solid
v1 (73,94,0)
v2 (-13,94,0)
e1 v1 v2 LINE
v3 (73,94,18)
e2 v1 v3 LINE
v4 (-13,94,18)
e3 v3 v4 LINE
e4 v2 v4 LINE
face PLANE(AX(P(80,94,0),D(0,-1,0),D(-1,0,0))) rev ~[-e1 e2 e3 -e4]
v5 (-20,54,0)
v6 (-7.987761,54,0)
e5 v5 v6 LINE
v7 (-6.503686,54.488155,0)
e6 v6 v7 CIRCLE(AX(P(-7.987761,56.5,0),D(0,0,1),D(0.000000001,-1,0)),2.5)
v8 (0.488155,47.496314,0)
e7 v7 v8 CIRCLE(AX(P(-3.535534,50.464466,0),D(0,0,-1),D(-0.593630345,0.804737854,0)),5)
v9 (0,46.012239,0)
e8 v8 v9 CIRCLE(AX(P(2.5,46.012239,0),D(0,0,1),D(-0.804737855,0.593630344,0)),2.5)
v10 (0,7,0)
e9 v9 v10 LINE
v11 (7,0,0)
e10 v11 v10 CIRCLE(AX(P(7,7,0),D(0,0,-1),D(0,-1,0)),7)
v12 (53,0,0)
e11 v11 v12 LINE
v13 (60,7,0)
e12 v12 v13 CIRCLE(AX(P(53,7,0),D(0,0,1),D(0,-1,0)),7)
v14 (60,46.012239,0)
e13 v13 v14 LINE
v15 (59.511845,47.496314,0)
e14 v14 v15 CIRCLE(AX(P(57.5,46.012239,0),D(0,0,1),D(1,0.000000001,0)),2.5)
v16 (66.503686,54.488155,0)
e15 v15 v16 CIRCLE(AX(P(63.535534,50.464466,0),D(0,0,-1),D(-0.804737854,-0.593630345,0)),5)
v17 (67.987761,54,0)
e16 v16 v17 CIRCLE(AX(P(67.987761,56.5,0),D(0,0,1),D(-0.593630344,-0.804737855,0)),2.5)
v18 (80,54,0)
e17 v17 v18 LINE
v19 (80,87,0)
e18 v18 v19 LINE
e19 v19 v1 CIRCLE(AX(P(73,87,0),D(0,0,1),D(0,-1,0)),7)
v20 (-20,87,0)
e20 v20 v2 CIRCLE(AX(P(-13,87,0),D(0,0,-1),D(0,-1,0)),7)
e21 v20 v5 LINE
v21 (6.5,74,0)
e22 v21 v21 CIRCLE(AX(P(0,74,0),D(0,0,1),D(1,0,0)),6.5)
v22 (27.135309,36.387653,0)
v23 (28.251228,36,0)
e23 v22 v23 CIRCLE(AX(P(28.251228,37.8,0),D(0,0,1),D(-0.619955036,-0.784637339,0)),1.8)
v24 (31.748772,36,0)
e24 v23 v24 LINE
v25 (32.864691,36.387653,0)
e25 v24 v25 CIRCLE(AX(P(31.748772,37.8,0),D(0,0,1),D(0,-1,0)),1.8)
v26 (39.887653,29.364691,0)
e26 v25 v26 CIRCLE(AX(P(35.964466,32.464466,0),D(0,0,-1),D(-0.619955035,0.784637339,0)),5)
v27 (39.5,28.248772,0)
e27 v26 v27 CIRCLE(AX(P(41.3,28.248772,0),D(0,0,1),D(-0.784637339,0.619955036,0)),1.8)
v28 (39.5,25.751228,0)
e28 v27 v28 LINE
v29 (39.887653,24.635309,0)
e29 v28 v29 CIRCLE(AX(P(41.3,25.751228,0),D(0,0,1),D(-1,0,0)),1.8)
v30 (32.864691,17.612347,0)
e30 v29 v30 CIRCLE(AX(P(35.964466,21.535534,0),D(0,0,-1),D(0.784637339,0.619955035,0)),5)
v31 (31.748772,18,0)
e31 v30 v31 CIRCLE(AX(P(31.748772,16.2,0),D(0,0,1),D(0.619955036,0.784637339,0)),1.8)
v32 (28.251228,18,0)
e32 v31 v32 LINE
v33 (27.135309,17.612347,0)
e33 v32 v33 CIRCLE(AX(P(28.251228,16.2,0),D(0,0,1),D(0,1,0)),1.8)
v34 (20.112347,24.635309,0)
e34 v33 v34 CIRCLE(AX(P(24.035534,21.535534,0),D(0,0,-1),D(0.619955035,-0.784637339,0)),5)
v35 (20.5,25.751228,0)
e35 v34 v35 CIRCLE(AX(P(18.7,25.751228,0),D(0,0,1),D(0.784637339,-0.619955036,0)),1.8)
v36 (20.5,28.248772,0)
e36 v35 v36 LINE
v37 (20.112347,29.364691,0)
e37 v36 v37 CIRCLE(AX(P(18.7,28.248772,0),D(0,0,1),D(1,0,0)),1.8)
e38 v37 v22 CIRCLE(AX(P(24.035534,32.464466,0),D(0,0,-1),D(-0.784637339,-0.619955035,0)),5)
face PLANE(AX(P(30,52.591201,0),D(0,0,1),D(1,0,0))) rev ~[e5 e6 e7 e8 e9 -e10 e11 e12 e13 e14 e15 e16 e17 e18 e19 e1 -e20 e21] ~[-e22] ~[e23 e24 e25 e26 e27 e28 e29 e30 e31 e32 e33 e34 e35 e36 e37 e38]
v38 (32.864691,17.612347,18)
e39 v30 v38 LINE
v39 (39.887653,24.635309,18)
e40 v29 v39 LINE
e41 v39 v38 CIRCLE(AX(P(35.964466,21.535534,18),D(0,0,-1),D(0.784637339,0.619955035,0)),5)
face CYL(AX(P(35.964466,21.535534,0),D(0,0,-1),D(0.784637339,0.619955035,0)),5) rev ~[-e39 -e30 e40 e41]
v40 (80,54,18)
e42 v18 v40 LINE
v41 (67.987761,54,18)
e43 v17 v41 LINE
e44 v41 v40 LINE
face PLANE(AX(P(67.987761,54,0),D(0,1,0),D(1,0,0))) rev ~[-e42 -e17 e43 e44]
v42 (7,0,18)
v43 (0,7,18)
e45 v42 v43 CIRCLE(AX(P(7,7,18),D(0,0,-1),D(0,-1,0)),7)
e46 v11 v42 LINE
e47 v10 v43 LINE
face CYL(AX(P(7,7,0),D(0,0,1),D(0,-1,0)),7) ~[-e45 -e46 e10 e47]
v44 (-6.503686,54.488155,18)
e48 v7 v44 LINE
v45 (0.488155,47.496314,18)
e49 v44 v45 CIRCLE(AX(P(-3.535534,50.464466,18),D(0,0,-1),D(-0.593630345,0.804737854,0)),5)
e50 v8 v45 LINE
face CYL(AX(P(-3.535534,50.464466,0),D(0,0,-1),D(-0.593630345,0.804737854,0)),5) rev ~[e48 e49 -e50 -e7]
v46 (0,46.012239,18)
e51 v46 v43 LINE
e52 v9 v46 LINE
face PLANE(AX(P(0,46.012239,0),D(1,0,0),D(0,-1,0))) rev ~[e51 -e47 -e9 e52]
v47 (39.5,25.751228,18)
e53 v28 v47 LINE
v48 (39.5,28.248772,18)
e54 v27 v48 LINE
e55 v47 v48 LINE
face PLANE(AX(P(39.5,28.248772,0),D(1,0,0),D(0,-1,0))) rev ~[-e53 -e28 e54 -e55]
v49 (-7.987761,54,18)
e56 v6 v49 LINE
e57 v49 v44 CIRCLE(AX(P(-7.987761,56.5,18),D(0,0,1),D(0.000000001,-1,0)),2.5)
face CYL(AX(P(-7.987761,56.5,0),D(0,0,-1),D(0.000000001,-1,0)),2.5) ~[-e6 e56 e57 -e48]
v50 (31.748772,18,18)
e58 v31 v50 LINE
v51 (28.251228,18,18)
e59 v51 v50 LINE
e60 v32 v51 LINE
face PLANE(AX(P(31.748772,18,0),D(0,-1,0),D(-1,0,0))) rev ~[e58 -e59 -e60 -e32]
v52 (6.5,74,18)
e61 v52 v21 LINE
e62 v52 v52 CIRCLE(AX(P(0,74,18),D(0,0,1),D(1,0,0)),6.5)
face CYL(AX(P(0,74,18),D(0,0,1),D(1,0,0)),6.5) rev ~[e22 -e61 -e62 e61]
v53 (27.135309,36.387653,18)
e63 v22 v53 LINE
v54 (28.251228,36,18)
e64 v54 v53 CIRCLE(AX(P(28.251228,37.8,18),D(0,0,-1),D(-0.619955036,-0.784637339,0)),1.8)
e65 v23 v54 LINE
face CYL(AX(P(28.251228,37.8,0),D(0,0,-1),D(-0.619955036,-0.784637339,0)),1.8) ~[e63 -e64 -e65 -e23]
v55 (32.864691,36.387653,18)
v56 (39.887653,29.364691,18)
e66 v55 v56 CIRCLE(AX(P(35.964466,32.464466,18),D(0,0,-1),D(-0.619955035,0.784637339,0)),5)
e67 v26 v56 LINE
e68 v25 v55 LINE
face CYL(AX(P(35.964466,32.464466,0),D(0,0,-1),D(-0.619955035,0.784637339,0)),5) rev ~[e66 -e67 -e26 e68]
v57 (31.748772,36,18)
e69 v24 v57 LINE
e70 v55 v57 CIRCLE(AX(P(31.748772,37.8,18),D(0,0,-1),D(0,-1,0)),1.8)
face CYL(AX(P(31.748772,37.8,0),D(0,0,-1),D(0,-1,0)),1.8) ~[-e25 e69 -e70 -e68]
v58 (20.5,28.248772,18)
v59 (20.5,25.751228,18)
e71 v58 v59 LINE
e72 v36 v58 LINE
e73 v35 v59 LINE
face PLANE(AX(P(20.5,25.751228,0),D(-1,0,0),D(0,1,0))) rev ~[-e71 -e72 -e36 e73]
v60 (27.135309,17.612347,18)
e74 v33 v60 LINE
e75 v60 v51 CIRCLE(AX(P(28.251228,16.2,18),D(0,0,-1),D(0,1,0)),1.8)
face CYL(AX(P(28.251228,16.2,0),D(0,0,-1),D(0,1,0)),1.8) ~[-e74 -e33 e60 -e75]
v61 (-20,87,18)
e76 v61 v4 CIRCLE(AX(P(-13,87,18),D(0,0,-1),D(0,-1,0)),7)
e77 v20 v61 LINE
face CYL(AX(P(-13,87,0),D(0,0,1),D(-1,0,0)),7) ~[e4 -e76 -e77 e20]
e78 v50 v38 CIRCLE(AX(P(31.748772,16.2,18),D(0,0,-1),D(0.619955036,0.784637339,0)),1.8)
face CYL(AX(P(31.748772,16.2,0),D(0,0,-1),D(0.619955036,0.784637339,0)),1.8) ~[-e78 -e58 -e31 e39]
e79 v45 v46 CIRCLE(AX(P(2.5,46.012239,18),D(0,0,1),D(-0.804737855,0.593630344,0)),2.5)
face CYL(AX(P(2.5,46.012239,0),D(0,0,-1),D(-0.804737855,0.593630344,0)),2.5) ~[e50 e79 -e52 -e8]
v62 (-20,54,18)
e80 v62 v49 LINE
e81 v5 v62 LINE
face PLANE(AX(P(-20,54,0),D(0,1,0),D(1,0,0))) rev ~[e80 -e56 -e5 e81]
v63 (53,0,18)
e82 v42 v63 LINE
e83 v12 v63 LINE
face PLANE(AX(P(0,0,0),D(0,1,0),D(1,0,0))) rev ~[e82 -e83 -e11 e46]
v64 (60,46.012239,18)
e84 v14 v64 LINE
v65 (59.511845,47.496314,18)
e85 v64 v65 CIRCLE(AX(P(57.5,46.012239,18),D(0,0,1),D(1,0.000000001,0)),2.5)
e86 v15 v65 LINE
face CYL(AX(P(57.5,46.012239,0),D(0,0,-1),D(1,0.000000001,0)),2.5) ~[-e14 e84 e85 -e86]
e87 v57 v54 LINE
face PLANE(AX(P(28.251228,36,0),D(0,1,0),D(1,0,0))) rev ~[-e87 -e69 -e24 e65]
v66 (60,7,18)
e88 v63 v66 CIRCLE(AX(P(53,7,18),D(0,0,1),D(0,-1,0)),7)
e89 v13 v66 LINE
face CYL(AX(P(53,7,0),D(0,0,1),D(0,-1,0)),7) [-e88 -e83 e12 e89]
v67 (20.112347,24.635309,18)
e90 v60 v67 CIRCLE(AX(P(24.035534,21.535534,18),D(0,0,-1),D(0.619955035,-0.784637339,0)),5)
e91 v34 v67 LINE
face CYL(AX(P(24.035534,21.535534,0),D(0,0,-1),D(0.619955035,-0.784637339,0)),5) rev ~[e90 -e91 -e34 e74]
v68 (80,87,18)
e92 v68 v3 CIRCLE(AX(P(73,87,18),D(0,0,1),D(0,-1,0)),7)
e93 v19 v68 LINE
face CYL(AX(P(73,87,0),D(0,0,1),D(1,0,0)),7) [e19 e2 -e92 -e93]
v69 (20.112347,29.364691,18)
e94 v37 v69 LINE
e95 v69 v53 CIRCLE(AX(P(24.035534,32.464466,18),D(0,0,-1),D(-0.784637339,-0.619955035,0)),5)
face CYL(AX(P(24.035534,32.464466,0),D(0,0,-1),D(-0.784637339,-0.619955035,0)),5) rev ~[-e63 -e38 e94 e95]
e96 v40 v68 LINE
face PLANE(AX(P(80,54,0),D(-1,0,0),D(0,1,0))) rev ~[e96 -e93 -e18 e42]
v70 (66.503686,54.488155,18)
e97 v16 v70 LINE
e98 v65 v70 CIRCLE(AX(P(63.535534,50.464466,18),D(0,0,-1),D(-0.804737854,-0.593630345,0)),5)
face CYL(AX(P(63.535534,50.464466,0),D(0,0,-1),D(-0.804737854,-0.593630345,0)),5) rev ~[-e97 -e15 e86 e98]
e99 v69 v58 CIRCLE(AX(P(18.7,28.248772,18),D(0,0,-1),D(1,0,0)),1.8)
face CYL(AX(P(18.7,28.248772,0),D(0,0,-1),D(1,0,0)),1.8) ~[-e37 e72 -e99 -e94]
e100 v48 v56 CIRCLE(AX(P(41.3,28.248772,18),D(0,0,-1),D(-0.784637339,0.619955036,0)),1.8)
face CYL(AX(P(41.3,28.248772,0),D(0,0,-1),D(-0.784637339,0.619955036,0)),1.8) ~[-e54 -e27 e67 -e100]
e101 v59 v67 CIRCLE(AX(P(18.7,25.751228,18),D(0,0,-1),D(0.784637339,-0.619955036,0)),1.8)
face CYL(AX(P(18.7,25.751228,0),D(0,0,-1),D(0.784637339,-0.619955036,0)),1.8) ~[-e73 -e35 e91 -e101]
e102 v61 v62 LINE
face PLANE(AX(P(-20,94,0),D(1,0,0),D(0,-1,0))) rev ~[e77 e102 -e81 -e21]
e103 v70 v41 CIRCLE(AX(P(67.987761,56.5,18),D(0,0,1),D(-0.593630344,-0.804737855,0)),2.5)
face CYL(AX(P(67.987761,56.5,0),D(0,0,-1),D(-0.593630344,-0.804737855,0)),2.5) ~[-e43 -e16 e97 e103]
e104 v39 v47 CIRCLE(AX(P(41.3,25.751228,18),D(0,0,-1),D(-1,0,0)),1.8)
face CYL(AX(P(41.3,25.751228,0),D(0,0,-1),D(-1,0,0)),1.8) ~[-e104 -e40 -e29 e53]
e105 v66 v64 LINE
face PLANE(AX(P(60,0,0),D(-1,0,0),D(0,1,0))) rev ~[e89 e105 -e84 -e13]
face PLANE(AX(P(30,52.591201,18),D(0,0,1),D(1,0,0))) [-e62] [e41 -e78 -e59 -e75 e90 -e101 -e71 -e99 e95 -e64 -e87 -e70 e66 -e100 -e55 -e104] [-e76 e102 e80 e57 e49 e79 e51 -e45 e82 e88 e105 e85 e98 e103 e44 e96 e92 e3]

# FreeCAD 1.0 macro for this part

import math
import FreeCAD as App
import Part
import Sketcher


def edges_at(feature, points):
    """Names of the edges that pass closest to the given points."""
    edges = feature.Shape.Edges
    near = lambda p: min(range(len(edges)), key=lambda i: edges[i].distToShape(Part.Vertex(*p))[0])
    return sorted({f"Edge{near(p) + 1}" for p in points})

doc = App.newDocument("Part")
body = doc.addObject("PartDesign::Body", "Body")

sketch1 = body.newObject("Sketcher::SketchObject", "Sketch")
sketch1.AttachmentSupport = (doc.getObject("XY_Plane"), [""])
sketch1.MapMode = "FlatFace"
sketch1.addGeometry([
    Part.LineSegment(App.Vector(0, 0, 0), App.Vector(60, 0, 0)),
    Part.LineSegment(App.Vector(60, 0, 0), App.Vector(60, 46, 0)),
    Part.ArcOfCircle(Part.Circle(App.Vector(57.5, 46, 0), App.Vector(0, 0, 1), 2.5), math.radians(0), math.radians(36)),
    Part.ArcOfCircle(Part.Circle(App.Vector(63.5, 50.5, 0), App.Vector(0, 0, 1), 5), math.radians(54), math.radians(216)),
    Part.ArcOfCircle(Part.Circle(App.Vector(68, 56.5, 0), App.Vector(0, 0, 1), 2.5), math.radians(-126), math.radians(-90)),
    Part.LineSegment(App.Vector(68, 54, 0), App.Vector(80, 54, 0)),
    Part.LineSegment(App.Vector(80, 54, 0), App.Vector(80, 94, 0)),
    Part.LineSegment(App.Vector(80, 94, 0), App.Vector(-20, 94, 0)),
    Part.LineSegment(App.Vector(-20, 94, 0), App.Vector(-20, 54, 0)),
    Part.LineSegment(App.Vector(-20, 54, 0), App.Vector(-8, 54, 0)),
    Part.ArcOfCircle(Part.Circle(App.Vector(-8, 56.5, 0), App.Vector(0, 0, 1), 2.5), math.radians(-90), math.radians(-54)),
    Part.ArcOfCircle(Part.Circle(App.Vector(-3.5, 50.5, 0), App.Vector(0, 0, 1), 5), math.radians(-36), math.radians(126)),
    Part.ArcOfCircle(Part.Circle(App.Vector(2.5, 46, 0), App.Vector(0, 0, 1), 2.5), math.radians(144), math.radians(180)),
    Part.LineSegment(App.Vector(0, 46, 0), App.Vector(0, 0, 0)),
], False)
sketch1.addConstraint([
    Sketcher.Constraint("Coincident", 0, 2, 1, 1),
    Sketcher.Constraint("Tangent", 1, 2, 2, 1),
    Sketcher.Constraint("Tangent", 2, 2, 3, 2),
    Sketcher.Constraint("Tangent", 3, 1, 4, 1),
    Sketcher.Constraint("Tangent", 4, 2, 5, 1),
    Sketcher.Constraint("Coincident", 5, 2, 6, 1),
    Sketcher.Constraint("Coincident", 6, 2, 7, 1),
    Sketcher.Constraint("Coincident", 7, 2, 8, 1),
    Sketcher.Constraint("Coincident", 8, 2, 9, 1),
    Sketcher.Constraint("Tangent", 9, 2, 10, 1),
    Sketcher.Constraint("Tangent", 10, 2, 11, 2),
    Sketcher.Constraint("Tangent", 11, 1, 12, 1),
    Sketcher.Constraint("Tangent", 12, 2, 13, 1),
    Sketcher.Constraint("Coincident", 13, 2, 0, 1),
    Sketcher.Constraint("Horizontal", 0),
    Sketcher.Constraint("Vertical", 1),
    Sketcher.Constraint("Horizontal", 5),
    Sketcher.Constraint("Vertical", 6),
    Sketcher.Constraint("Horizontal", 7),
    Sketcher.Constraint("Vertical", 8),
    Sketcher.Constraint("Horizontal", 9),
    Sketcher.Constraint("Vertical", 13),
    Sketcher.Constraint("Coincident", 13, 2, -1, 1),
    Sketcher.Constraint("Equal", 2, 4),
    Sketcher.Constraint("Equal", 4, 10),
    Sketcher.Constraint("Equal", 3, 11),
    Sketcher.Constraint("Equal", 10, 12),
    Sketcher.Constraint("Horizontal", 4, 3, 10, 3),
    Sketcher.Constraint("Horizontal", 3, 3, 11, 3),
    Sketcher.Constraint("Horizontal", 2, 3, 12, 3),
    Sketcher.Constraint("Equal", 5, 9),
    Sketcher.Constraint("Radius", 3, 5.0),
    Sketcher.Constraint("Radius", 2, 2.5),
    Sketcher.Constraint("DistanceX", 0, 1, 0, 2, 60.0),
    Sketcher.Constraint("DistanceX", 7, 2, 7, 1, 100.0),
    Sketcher.Constraint("DistanceY", 6, 1, 6, 2, 40.0),
    Sketcher.Constraint("DistanceY", -1, 1, 4, 2, 54.0),
    Sketcher.Constraint("DistanceX", 5, 1, 5, 2, 12.012239),
    Sketcher.Constraint("DistanceY", 1, 1, 1, 2, 46.012239),
])
pad1 = body.newObject("PartDesign::Pad", "Pad")
pad1.Profile = sketch1
pad1.Length = 18

sketch2 = body.newObject("Sketcher::SketchObject", "Sketch001")
sketch2.AttachmentSupport = (doc.getObject("XY_Plane"), [""])
sketch2.MapMode = "FlatFace"
sketch2.addGeometry([
    Part.LineSegment(App.Vector(39.5, 25.8, 0), App.Vector(39.5, 28.2, 0)),
    Part.ArcOfCircle(Part.Circle(App.Vector(41.3, 28.2, 0), App.Vector(0, 0, 1), 1.8), math.radians(142), math.radians(180)),
    Part.ArcOfCircle(Part.Circle(App.Vector(36, 32.5, 0), App.Vector(0, 0, 1), 5), math.radians(-38), math.radians(128)),
    Part.ArcOfCircle(Part.Circle(App.Vector(31.7, 37.8, 0), App.Vector(0, 0, 1), 1.8), math.radians(-90), math.radians(-52)),
    Part.LineSegment(App.Vector(31.7, 36, 0), App.Vector(28.3, 36, 0)),
    Part.ArcOfCircle(Part.Circle(App.Vector(28.3, 37.8, 0), App.Vector(0, 0, 1), 1.8), math.radians(-128), math.radians(-90)),
    Part.ArcOfCircle(Part.Circle(App.Vector(24, 32.5, 0), App.Vector(0, 0, 1), 5), math.radians(52), math.radians(218)),
    Part.ArcOfCircle(Part.Circle(App.Vector(18.7, 28.2, 0), App.Vector(0, 0, 1), 1.8), math.radians(0), math.radians(38)),
    Part.LineSegment(App.Vector(20.5, 28.2, 0), App.Vector(20.5, 25.8, 0)),
    Part.ArcOfCircle(Part.Circle(App.Vector(18.7, 25.8, 0), App.Vector(0, 0, 1), 1.8), math.radians(-38), math.radians(0)),
    Part.ArcOfCircle(Part.Circle(App.Vector(24, 21.5, 0), App.Vector(0, 0, 1), 5), math.radians(142), math.radians(308)),
    Part.ArcOfCircle(Part.Circle(App.Vector(28.3, 16.2, 0), App.Vector(0, 0, 1), 1.8), math.radians(90), math.radians(128)),
    Part.LineSegment(App.Vector(28.3, 18, 0), App.Vector(31.7, 18, 0)),
    Part.ArcOfCircle(Part.Circle(App.Vector(31.7, 16.2, 0), App.Vector(0, 0, 1), 1.8), math.radians(52), math.radians(90)),
    Part.ArcOfCircle(Part.Circle(App.Vector(36, 21.5, 0), App.Vector(0, 0, 1), 5), math.radians(-128), math.radians(38)),
    Part.ArcOfCircle(Part.Circle(App.Vector(41.3, 25.8, 0), App.Vector(0, 0, 1), 1.8), math.radians(-180), math.radians(-142)),
], False)
sketch2.addConstraint([
    Sketcher.Constraint("Tangent", 0, 2, 1, 2),
    Sketcher.Constraint("Tangent", 1, 1, 2, 1),
    Sketcher.Constraint("Tangent", 2, 2, 3, 2),
    Sketcher.Constraint("Tangent", 3, 1, 4, 1),
    Sketcher.Constraint("Tangent", 4, 2, 5, 2),
    Sketcher.Constraint("Tangent", 5, 1, 6, 1),
    Sketcher.Constraint("Tangent", 6, 2, 7, 2),
    Sketcher.Constraint("Tangent", 7, 1, 8, 1),
    Sketcher.Constraint("Tangent", 8, 2, 9, 2),
    Sketcher.Constraint("Tangent", 9, 1, 10, 1),
    Sketcher.Constraint("Tangent", 10, 2, 11, 2),
    Sketcher.Constraint("Tangent", 11, 1, 12, 1),
    Sketcher.Constraint("Tangent", 12, 2, 13, 2),
    Sketcher.Constraint("Tangent", 13, 1, 14, 1),
    Sketcher.Constraint("Tangent", 14, 2, 15, 2),
    Sketcher.Constraint("Tangent", 15, 1, 0, 1),
    Sketcher.Constraint("Vertical", 0),
    Sketcher.Constraint("Horizontal", 4),
    Sketcher.Constraint("Vertical", 8),
    Sketcher.Constraint("Horizontal", 12),
    Sketcher.Constraint("Equal", 1, 3),
    Sketcher.Constraint("Equal", 3, 5),
    Sketcher.Constraint("Equal", 2, 6),
    Sketcher.Constraint("Equal", 5, 7),
    Sketcher.Constraint("Equal", 7, 9),
    Sketcher.Constraint("Equal", 6, 10),
    Sketcher.Constraint("Equal", 9, 11),
    Sketcher.Constraint("Equal", 11, 13),
    Sketcher.Constraint("Equal", 10, 14),
    Sketcher.Constraint("Equal", 13, 15),
    Sketcher.Constraint("Horizontal", 2, 3, 6, 3),
    Sketcher.Constraint("Horizontal", 1, 3, 7, 3),
    Sketcher.Constraint("Horizontal", 10, 3, 14, 3),
    Sketcher.Constraint("Horizontal", 9, 3, 15, 3),
    Sketcher.Constraint("Vertical", 6, 3, 10, 3),
    Sketcher.Constraint("Vertical", 5, 3, 11, 3),
    Sketcher.Constraint("Radius", 2, 5.0),
    Sketcher.Constraint("Radius", 1, 1.8),
    Sketcher.Constraint("DistanceY", -1, 1, 3, 1, 36.0),
    Sketcher.Constraint("DistanceY", -1, 1, 11, 1, 18.0),
    Sketcher.Constraint("DistanceX", -1, 1, 1, 3, 41.3),
    Sketcher.Constraint("DistanceX", -1, 1, 7, 3, 18.7),
    Sketcher.Constraint("DistanceX", 4, 2, 4, 1, 3.497544),
    Sketcher.Constraint("DistanceY", 0, 1, 0, 2, 2.497544),
])
pocket1 = body.newObject("PartDesign::Pocket", "Pocket")
pocket1.Profile = sketch2
pocket1.Type = "ThroughAll"
pocket1.Reversed = True
doc.recompute()

fillet = body.newObject("PartDesign::Fillet", "Fillet")
fillet.Base = (pocket1, edges_at(pocket1, [
    (-20, 94, 9),
    (80, 94, 9),
    (60, 0, 9),
    (0, 0, 9),
]))
fillet.Radius = 7

sketch3 = body.newObject("Sketcher::SketchObject", "Sketch002")
sketch3.AttachmentSupport = (doc.getObject("XY_Plane"), [""])
sketch3.MapMode = "FlatFace"
sketch3.AttachmentOffset = App.Placement(App.Vector(0, 0, 18), App.Rotation())
sketch3.addGeometry(Part.Circle(App.Vector(0, 74, 0), App.Vector(0, 0, 1), 6), False)
sketch3.addConstraint([
    Sketcher.Constraint("PointOnObject", 0, 3, -2),
    Sketcher.Constraint("Diameter", 0, 13.0),
    Sketcher.Constraint("DistanceY", -1, 1, 0, 3, 74.0),
])
pocket2 = body.newObject("PartDesign::Pocket", "Pocket001")
pocket2.Profile = sketch3
pocket2.Type = "ThroughAll"

doc.recompute()
